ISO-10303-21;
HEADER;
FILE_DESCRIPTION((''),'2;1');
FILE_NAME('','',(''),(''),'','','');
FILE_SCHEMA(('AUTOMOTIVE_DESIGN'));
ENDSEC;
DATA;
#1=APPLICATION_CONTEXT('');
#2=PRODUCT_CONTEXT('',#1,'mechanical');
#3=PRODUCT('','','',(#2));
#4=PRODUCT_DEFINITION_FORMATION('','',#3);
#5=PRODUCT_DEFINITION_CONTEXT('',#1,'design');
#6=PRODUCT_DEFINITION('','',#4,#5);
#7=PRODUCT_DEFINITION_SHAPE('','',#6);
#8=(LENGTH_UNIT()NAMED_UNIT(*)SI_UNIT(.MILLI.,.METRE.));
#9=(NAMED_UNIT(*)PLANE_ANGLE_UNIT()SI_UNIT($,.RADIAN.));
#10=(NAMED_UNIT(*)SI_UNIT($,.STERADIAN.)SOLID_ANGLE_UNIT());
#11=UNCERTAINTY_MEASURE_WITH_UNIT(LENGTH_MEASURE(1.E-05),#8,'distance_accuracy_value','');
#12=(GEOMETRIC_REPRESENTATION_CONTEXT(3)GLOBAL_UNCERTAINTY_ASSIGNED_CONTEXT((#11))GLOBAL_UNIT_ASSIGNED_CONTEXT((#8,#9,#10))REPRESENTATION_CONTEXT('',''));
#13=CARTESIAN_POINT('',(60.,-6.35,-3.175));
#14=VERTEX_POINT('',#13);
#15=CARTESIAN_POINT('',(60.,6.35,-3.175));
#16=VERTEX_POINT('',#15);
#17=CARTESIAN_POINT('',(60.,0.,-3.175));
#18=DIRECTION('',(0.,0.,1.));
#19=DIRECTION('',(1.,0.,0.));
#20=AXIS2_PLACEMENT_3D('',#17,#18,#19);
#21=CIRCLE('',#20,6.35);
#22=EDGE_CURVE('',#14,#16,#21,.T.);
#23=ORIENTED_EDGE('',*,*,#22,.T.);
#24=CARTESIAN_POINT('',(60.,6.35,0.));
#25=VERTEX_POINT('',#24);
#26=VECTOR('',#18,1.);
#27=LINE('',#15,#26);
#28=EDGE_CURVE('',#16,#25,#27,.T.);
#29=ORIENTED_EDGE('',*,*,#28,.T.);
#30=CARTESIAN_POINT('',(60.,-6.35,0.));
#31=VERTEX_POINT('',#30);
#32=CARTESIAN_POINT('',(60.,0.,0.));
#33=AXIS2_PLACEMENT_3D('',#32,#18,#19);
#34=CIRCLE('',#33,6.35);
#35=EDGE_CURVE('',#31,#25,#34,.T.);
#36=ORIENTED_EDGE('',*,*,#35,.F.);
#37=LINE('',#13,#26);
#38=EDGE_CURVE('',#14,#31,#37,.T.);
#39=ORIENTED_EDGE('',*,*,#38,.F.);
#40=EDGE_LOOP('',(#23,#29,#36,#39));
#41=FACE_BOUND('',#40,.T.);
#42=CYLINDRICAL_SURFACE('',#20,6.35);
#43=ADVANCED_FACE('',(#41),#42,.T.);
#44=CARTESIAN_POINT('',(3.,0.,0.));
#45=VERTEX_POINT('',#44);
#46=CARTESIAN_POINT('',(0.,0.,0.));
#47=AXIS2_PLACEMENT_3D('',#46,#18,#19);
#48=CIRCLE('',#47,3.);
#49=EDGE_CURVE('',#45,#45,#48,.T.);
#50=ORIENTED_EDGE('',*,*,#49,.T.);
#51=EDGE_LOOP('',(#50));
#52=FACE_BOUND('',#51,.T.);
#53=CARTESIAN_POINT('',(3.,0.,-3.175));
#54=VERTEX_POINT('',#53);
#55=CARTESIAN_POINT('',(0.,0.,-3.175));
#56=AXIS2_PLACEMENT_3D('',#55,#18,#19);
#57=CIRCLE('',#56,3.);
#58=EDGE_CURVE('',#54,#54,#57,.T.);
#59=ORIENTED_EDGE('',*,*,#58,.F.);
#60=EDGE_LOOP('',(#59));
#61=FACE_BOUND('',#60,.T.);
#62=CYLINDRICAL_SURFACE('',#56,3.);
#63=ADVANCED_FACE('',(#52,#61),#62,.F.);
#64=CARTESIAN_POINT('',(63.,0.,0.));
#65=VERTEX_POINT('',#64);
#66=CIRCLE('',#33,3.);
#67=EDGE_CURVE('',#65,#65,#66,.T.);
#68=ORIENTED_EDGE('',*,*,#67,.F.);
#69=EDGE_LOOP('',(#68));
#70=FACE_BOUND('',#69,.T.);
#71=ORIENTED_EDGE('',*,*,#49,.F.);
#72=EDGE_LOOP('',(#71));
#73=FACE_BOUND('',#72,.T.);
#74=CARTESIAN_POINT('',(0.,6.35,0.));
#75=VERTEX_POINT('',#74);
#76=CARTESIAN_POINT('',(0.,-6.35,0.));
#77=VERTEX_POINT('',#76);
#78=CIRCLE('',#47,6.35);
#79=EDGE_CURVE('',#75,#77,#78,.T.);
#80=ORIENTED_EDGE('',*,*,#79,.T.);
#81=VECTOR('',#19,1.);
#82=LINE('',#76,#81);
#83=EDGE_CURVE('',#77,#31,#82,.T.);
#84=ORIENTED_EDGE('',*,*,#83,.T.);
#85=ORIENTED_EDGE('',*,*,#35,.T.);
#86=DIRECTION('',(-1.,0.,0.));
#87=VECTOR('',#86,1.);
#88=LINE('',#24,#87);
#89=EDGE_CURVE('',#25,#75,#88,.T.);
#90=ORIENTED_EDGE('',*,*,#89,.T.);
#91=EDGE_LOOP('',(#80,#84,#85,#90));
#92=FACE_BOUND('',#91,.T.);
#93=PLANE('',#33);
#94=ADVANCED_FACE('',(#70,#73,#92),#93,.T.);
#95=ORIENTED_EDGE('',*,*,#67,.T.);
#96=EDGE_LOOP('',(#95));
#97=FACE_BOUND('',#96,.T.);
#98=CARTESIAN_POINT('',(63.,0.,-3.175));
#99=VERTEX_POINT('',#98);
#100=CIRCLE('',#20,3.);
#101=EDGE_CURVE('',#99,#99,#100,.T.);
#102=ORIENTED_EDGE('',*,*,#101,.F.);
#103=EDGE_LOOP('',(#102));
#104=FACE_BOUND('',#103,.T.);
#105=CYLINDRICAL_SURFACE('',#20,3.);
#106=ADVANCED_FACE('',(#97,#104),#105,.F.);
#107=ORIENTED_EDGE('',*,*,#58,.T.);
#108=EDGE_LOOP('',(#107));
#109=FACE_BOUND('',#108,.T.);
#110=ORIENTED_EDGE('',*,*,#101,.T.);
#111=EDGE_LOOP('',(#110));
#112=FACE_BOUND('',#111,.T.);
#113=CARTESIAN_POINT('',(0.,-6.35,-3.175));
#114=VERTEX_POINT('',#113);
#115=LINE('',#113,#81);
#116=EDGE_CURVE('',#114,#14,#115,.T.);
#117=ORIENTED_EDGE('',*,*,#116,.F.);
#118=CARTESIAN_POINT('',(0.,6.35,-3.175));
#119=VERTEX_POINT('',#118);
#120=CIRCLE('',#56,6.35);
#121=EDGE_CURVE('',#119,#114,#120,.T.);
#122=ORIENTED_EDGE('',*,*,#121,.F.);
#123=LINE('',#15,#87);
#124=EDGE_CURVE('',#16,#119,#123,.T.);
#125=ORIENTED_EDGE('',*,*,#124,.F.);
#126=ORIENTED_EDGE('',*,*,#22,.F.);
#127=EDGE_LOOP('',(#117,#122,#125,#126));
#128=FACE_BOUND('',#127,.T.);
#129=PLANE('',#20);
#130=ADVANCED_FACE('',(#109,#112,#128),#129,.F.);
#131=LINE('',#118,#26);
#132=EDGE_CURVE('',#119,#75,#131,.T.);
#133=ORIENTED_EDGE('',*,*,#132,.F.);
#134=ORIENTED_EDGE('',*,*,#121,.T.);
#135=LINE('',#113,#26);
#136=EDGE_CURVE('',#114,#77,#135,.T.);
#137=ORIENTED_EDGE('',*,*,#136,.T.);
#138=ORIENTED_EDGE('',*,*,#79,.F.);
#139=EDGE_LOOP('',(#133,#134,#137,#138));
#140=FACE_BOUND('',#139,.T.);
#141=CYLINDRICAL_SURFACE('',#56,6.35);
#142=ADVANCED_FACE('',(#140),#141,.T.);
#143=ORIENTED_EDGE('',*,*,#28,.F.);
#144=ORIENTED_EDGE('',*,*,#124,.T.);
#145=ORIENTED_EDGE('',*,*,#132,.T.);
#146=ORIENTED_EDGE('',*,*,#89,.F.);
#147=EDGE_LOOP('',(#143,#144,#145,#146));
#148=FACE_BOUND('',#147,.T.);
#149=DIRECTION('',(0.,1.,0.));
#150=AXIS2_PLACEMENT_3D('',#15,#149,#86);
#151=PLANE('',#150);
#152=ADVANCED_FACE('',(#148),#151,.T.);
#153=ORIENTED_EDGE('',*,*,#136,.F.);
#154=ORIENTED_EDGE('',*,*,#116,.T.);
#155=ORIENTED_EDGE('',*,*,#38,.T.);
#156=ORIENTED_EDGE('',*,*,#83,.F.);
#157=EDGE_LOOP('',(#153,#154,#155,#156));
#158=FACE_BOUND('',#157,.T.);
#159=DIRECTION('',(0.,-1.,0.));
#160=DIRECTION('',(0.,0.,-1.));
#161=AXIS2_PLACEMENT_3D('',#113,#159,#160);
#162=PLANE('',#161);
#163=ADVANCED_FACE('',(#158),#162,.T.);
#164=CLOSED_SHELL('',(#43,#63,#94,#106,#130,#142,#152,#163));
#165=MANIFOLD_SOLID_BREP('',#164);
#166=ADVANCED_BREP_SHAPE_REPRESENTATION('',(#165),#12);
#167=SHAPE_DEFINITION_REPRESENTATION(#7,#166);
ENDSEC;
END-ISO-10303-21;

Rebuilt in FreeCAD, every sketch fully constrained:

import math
import FreeCAD as App
import Part
import Sketcher

doc = App.newDocument("Part")
body = doc.addObject("PartDesign::Body", "Body")

sketch1 = doc.addObject("Sketcher::SketchObject", "Sketch")
body.addObject(sketch1)
sketch1.AttachmentSupport = (doc.XY_Plane, [""])
sketch1.MapMode = "FlatFace"
sketch1.addGeometry([
    Part.LineSegment(App.Vector(60, 6.3, 0), App.Vector(0, 6.3, 0)),
    Part.ArcOfCircle(Part.Circle(App.Vector(0, 0, 0), App.Vector(0, 0, 1), 6.3), math.radians(90), math.radians(270)),
    Part.LineSegment(App.Vector(0, -6.3, 0), App.Vector(60, -6.3, 0)),
    Part.ArcOfCircle(Part.Circle(App.Vector(60, 0, 0), App.Vector(0, 0, 1), 6.3), math.radians(-90), math.radians(90)),
    Part.Circle(App.Vector(0, 0, 0), App.Vector(0, 0, 1), 3),
    Part.Circle(App.Vector(60, 0, 0), App.Vector(0, 0, 1), 3),
], False)
sketch1.addConstraint([
    Sketcher.Constraint("Tangent", 0, 2, 1, 1),
    Sketcher.Constraint("Tangent", 1, 2, 2, 1),
    Sketcher.Constraint("Tangent", 2, 2, 3, 1),
    Sketcher.Constraint("Tangent", 3, 2, 0, 1),
    Sketcher.Constraint("Horizontal", 0),
    Sketcher.Constraint("Horizontal", 2),
    Sketcher.Constraint("Coincident", 1, 3, -1, 1),
    Sketcher.Constraint("Coincident", 4, 3, -1, 1),
    Sketcher.Constraint("Coincident", 5, 3, 3, 3),
    Sketcher.Constraint("Equal", 4, 5),
    Sketcher.Constraint("Diameter", 4, 6.0),
    Sketcher.Constraint("DistanceX", 0, 2, 0, 1, 60.0),
    Sketcher.Constraint("Radius", 1, 6.35),
])
pad1 = doc.addObject("PartDesign::Pad", "Pad")
body.addObject(pad1)
pad1.Profile = sketch1
pad1.Length = 3.175
pad1.Reversed = True

doc.recompute()
